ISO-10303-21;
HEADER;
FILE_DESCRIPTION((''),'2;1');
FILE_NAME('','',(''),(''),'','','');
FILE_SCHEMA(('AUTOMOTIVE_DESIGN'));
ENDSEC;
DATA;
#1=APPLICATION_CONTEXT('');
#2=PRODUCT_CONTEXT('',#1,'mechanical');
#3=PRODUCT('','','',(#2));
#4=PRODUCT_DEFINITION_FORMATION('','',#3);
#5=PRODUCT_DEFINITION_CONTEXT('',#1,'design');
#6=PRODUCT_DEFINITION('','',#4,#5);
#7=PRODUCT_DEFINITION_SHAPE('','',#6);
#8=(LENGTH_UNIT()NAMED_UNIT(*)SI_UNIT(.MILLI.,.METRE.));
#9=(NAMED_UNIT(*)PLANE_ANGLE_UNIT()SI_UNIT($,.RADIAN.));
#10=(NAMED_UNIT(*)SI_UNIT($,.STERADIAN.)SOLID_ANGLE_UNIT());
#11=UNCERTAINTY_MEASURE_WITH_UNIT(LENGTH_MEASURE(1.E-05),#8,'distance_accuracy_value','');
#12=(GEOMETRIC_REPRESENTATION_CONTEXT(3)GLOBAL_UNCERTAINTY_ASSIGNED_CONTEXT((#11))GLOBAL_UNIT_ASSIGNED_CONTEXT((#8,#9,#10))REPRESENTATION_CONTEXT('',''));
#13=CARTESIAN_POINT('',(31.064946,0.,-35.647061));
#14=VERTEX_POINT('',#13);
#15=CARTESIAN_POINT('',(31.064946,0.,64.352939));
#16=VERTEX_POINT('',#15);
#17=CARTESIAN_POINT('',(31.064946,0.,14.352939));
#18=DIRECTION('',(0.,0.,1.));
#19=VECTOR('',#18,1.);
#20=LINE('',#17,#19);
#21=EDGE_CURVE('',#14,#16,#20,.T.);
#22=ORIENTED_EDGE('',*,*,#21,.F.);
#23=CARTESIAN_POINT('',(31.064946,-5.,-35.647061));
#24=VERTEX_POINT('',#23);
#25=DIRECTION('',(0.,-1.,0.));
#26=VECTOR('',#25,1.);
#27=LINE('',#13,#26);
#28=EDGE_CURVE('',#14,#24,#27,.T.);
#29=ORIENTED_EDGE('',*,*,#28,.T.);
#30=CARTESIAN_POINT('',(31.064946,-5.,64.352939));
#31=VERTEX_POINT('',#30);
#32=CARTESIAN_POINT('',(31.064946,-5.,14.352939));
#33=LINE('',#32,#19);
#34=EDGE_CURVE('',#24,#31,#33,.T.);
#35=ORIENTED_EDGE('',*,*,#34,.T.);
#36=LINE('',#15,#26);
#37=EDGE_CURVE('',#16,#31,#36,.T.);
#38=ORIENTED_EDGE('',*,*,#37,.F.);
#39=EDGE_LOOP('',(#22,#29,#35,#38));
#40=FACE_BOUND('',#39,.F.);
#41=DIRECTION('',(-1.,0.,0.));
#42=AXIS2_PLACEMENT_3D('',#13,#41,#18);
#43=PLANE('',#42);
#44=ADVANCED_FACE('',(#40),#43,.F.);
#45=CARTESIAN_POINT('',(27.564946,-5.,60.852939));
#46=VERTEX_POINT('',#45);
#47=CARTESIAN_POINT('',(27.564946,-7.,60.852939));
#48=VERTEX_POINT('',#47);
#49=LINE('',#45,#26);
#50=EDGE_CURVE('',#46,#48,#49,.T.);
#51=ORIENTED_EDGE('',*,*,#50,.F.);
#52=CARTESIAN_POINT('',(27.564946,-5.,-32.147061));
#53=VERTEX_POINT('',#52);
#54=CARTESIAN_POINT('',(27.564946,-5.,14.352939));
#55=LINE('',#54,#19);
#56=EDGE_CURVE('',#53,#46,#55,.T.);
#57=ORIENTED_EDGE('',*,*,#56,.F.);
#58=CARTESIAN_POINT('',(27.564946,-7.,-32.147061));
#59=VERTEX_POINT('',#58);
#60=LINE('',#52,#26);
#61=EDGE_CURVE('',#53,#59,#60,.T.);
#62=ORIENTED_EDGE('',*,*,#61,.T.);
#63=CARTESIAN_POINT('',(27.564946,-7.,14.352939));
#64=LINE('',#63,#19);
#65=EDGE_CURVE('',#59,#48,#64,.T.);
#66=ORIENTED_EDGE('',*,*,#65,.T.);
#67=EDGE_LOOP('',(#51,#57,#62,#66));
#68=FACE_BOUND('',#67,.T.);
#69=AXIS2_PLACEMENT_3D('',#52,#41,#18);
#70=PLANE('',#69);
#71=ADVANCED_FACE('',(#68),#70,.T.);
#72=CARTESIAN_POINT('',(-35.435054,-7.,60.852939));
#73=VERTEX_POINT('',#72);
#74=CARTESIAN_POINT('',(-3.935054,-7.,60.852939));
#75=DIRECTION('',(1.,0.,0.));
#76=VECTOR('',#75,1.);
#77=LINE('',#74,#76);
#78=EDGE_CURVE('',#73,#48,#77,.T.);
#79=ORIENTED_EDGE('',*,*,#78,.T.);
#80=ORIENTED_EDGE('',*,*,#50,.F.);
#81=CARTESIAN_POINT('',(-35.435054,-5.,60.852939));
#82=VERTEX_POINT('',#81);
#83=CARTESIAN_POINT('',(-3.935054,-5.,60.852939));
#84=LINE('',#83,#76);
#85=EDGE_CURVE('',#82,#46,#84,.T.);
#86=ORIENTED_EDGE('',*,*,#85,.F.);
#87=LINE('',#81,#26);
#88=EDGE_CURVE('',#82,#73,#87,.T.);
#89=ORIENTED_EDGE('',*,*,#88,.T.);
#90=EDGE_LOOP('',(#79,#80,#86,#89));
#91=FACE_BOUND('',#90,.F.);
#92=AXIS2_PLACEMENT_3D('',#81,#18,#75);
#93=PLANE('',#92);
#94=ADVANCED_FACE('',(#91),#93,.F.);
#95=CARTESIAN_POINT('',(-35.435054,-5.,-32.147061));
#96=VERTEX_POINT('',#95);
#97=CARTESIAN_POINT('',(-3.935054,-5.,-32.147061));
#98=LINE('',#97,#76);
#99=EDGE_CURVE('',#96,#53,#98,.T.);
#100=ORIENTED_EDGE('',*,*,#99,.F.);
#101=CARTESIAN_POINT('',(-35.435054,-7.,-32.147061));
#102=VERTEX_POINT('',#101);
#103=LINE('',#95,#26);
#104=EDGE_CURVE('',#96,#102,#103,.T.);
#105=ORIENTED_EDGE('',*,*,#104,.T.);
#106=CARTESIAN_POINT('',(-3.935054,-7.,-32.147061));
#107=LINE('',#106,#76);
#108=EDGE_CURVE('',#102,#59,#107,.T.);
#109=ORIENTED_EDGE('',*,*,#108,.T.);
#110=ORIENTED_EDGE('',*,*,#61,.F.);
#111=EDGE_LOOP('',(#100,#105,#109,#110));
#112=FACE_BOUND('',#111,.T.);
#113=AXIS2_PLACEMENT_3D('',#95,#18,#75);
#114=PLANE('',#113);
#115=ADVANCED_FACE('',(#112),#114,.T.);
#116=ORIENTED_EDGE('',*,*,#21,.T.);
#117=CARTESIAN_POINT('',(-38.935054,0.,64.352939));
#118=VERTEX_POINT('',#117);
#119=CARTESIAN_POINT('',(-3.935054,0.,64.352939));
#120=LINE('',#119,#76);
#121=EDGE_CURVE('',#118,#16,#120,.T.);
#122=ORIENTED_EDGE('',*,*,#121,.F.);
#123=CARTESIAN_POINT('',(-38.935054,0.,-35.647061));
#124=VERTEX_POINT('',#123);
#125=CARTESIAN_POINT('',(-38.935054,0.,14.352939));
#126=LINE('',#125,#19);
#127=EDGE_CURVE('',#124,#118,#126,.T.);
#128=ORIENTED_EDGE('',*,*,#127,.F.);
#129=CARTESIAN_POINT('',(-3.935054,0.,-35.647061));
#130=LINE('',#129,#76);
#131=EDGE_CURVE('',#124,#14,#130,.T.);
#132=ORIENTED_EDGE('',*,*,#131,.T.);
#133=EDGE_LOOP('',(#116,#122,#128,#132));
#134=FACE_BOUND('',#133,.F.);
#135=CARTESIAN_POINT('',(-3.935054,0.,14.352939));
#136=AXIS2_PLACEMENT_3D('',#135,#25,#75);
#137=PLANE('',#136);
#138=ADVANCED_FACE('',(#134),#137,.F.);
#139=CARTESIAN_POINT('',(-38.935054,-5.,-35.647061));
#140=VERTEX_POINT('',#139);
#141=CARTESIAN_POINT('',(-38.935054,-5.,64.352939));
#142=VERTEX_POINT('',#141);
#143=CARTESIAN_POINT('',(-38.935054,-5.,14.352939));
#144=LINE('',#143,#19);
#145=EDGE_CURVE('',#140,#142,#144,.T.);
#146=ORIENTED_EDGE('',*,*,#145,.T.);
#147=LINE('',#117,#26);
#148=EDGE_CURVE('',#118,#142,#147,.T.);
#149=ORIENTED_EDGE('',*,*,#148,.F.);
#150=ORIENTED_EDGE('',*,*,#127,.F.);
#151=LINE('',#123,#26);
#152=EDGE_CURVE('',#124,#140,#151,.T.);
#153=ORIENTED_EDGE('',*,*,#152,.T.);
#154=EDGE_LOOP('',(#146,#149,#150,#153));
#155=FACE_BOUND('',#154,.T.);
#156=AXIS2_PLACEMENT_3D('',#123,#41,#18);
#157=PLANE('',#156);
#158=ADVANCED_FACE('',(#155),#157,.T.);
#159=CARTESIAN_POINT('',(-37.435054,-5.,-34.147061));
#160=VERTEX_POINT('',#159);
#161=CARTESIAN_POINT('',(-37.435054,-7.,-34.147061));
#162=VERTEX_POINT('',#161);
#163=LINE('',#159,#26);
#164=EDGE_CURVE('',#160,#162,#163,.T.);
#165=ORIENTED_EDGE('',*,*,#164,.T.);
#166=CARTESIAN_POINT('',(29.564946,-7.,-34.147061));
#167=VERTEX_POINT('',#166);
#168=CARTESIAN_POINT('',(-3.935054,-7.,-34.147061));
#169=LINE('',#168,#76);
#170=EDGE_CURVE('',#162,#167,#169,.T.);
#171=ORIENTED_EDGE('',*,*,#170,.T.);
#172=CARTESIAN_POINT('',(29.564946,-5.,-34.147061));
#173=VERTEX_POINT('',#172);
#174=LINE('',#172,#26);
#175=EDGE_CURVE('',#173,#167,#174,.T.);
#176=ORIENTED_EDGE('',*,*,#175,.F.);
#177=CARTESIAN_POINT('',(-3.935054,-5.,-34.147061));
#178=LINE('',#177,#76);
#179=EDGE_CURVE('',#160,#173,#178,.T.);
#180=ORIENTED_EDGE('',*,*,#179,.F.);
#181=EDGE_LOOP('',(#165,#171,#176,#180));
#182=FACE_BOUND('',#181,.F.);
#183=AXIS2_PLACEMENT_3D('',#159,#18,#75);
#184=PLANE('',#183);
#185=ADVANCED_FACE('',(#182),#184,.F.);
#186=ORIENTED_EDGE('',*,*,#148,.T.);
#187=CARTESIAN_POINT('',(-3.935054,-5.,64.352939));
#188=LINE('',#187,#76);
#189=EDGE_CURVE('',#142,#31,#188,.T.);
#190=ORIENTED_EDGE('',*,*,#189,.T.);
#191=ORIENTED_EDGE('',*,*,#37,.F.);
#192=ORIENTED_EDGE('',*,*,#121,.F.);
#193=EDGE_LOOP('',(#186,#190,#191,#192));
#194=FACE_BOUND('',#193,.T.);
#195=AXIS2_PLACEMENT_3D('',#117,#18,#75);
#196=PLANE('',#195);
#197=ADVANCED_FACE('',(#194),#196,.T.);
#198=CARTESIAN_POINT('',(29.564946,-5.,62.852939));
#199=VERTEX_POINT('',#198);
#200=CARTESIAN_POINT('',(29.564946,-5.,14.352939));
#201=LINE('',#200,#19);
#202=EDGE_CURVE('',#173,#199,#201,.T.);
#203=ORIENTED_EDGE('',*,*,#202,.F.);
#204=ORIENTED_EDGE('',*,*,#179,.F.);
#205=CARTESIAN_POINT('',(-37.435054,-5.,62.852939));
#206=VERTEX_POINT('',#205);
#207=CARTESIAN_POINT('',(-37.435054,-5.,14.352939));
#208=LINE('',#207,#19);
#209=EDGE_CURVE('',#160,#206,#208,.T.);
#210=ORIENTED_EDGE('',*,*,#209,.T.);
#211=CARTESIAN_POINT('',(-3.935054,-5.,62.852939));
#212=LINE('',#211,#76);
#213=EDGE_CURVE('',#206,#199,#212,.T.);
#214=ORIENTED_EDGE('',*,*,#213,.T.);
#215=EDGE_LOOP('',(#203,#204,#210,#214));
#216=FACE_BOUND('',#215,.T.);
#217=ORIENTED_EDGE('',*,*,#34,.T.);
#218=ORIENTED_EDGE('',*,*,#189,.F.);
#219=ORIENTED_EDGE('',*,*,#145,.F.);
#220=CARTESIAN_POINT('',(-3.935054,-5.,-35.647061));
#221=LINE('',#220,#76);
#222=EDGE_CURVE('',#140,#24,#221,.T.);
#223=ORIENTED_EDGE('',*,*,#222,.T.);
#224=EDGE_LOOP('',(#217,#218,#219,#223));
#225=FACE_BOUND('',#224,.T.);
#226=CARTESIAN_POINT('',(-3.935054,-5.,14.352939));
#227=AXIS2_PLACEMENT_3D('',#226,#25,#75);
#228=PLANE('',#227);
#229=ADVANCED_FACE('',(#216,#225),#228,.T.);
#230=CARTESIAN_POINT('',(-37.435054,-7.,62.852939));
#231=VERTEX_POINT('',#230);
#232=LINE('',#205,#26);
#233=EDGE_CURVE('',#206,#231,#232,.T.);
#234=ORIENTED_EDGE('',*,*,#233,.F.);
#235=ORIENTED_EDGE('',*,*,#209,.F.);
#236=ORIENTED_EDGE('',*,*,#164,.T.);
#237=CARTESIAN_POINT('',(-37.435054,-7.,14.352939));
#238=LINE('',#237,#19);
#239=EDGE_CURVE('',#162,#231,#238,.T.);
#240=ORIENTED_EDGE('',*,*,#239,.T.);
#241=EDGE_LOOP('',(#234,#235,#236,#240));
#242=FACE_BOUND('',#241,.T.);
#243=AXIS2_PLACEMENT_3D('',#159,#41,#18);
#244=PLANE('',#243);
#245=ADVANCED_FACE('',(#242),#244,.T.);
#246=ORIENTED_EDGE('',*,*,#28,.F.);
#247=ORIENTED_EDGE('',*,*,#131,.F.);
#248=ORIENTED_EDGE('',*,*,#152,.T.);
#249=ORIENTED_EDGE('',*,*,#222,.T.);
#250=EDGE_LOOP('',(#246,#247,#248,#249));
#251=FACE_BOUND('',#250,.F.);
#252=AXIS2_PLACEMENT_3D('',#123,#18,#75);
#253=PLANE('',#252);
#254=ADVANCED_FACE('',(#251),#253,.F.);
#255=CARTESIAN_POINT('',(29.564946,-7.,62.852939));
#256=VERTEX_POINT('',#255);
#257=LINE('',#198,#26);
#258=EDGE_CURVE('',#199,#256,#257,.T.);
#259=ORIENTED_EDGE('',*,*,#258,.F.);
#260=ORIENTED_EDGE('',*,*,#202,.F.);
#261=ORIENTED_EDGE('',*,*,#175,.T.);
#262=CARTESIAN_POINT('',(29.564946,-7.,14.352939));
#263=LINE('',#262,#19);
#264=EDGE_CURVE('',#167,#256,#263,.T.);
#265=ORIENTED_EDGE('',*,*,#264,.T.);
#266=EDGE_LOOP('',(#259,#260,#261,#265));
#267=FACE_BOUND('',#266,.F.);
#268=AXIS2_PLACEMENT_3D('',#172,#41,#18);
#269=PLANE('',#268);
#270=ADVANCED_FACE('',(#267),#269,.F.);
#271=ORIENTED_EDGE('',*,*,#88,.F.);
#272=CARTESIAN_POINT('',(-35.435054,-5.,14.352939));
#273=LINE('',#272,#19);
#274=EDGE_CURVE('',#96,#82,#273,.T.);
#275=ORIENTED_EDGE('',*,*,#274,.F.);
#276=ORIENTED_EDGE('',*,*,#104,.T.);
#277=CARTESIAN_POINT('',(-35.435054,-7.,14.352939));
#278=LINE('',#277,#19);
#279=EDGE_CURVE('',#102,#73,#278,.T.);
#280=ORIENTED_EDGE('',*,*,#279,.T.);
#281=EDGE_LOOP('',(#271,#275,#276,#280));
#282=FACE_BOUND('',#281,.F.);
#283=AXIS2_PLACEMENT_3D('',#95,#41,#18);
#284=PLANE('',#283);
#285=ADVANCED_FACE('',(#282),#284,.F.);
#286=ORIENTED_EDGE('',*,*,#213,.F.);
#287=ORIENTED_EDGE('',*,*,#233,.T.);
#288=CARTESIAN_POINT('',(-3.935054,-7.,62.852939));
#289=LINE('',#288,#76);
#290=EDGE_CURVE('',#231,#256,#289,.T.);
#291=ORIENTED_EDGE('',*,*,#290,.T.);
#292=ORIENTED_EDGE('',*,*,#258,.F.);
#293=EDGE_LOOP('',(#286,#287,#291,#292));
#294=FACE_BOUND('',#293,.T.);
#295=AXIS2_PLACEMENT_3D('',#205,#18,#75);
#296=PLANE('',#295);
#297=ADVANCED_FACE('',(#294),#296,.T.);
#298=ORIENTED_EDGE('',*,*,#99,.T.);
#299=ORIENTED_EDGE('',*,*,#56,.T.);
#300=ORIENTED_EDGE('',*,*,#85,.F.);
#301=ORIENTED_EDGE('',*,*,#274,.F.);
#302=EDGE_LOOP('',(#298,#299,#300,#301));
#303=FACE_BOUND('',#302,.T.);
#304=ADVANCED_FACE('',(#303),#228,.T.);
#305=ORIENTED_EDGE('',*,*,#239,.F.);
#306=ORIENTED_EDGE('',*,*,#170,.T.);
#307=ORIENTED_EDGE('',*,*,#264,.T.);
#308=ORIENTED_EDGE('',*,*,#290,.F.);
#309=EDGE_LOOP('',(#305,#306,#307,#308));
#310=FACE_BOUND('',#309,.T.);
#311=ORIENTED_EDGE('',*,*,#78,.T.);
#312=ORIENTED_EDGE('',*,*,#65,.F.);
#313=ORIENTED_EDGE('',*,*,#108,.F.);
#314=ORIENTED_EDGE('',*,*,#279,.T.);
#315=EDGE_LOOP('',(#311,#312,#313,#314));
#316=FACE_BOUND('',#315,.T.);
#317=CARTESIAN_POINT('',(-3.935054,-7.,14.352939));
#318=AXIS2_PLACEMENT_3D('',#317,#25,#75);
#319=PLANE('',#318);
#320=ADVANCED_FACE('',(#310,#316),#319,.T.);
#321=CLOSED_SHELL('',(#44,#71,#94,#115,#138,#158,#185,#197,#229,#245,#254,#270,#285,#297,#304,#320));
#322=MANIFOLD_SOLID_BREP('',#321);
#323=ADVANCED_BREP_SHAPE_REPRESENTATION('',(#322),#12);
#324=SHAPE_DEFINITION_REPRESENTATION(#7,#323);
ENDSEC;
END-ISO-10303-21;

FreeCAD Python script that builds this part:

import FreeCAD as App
import Part
import Sketcher
Q = App.Units.Quantity

doc = App.newDocument("Part")
body = doc.addObject("PartDesign::Body", "Body")

sketch1 = doc.addObject("Sketcher::SketchObject", "Sketch")
body.addObject(sketch1)
sketch1.AttachmentSupport = (doc.XZ_Plane, [""])
sketch1.MapMode = "FlatFace"
sketch1.addGeometry([
    Part.LineSegment(App.Vector(-38.935054, 64.352939, 0), App.Vector(-38.935054, -35.647061, 0)),
    Part.LineSegment(App.Vector(-38.935054, -35.647061, 0), App.Vector(31.064946, -35.647061, 0)),
    Part.LineSegment(App.Vector(31.064946, -35.647061, 0), App.Vector(31.064946, 64.352939, 0)),
    Part.LineSegment(App.Vector(31.064946, 64.352939, 0), App.Vector(-38.935054, 64.352939, 0)),
], False)
sketch1.addConstraint([
    Sketcher.Constraint("Coincident", 0, 2, 1, 1),
    Sketcher.Constraint("Coincident", 1, 2, 2, 1),
    Sketcher.Constraint("Coincident", 2, 2, 3, 1),
    Sketcher.Constraint("Coincident", 3, 2, 0, 1),
    Sketcher.Constraint("Vertical", 0),
    Sketcher.Constraint("Horizontal", 1),
    Sketcher.Constraint("Vertical", 2),
    Sketcher.Constraint("Horizontal", 3),
    Sketcher.Constraint("DistanceX", 1, 1, 1, 2, Q("70 mm")),
    Sketcher.Constraint("DistanceY", 0, 2, 0, 1, Q("100 mm")),
    Sketcher.Constraint("DistanceY", 0, 2, -1, 1, Q("35.647061 mm")),
    Sketcher.Constraint("DistanceX", 0, 2, -1, 1, Q("38.935054 mm")),
])
pad1 = doc.addObject("PartDesign::Pad", "Pad")
body.addObject(pad1)
pad1.Profile = sketch1
pad1.Length = 5

sketch2 = doc.addObject("Sketcher::SketchObject", "Sketch001")
body.addObject(sketch2)
sketch2.AttachmentSupport = (doc.XZ_Plane, [""])
sketch2.MapMode = "FlatFace"
sketch2.AttachmentOffset = App.Placement(App.Vector(0, 0, 5), App.Rotation())
sketch2.addGeometry([
    Part.LineSegment(App.Vector(-37.435054, 62.852939, 0), App.Vector(-37.435054, -34.147061, 0)),
    Part.LineSegment(App.Vector(-37.435054, -34.147061, 0), App.Vector(29.564946, -34.147061, 0)),
    Part.LineSegment(App.Vector(29.564946, -34.147061, 0), App.Vector(29.564946, 62.852939, 0)),
    Part.LineSegment(App.Vector(29.564946, 62.852939, 0), App.Vector(-37.435054, 62.852939, 0)),
    Part.LineSegment(App.Vector(27.564946, -32.147061, 0), App.Vector(-35.435054, -32.147061, 0)),
    Part.LineSegment(App.Vector(-35.435054, -32.147061, 0), App.Vector(-35.435054, 60.852939, 0)),
    Part.LineSegment(App.Vector(-35.435054, 60.852939, 0), App.Vector(27.564946, 60.852939, 0)),
    Part.LineSegment(App.Vector(27.564946, 60.852939, 0), App.Vector(27.564946, -32.147061, 0)),
], False)
sketch2.addConstraint([
    Sketcher.Constraint("Coincident", 0, 2, 1, 1),
    Sketcher.Constraint("Coincident", 1, 2, 2, 1),
    Sketcher.Constraint("Coincident", 2, 2, 3, 1),
    Sketcher.Constraint("Coincident", 3, 2, 0, 1),
    Sketcher.Constraint("Coincident", 4, 2, 5, 1),
    Sketcher.Constraint("Coincident", 5, 2, 6, 1),
    Sketcher.Constraint("Coincident", 6, 2, 7, 1),
    Sketcher.Constraint("Coincident", 7, 2, 4, 1),
    Sketcher.Constraint("Vertical", 0),
    Sketcher.Constraint("Horizontal", 1),
    Sketcher.Constraint("Vertical", 2),
    Sketcher.Constraint("Horizontal", 3),
    Sketcher.Constraint("Horizontal", 4),
    Sketcher.Constraint("Vertical", 5),
    Sketcher.Constraint("Horizontal", 6),
    Sketcher.Constraint("Vertical", 7),
    Sketcher.Constraint("DistanceX", 1, 1, 1, 2, Q("67 mm")),
    Sketcher.Constraint("DistanceX", 4, 2, 4, 1, Q("63 mm")),
    Sketcher.Constraint("DistanceY", 0, 2, 0, 1, Q("97 mm")),
    Sketcher.Constraint("DistanceY", 5, 1, 5, 2, Q("93 mm")),
    Sketcher.Constraint("DistanceX", 0, 2, 4, 2, Q("2 mm")),
    Sketcher.Constraint("DistanceY", 0, 2, 4, 2, Q("2 mm")),
    Sketcher.Constraint("DistanceY", 0, 2, -1, 1, Q("34.147061 mm")),
    Sketcher.Constraint("DistanceX", 0, 2, -1, 1, Q("37.435054 mm")),
])
pad2 = doc.addObject("PartDesign::Pad", "Pad001")
body.addObject(pad2)
pad2.Profile = sketch2
pad2.Length = 2

doc.recompute()
